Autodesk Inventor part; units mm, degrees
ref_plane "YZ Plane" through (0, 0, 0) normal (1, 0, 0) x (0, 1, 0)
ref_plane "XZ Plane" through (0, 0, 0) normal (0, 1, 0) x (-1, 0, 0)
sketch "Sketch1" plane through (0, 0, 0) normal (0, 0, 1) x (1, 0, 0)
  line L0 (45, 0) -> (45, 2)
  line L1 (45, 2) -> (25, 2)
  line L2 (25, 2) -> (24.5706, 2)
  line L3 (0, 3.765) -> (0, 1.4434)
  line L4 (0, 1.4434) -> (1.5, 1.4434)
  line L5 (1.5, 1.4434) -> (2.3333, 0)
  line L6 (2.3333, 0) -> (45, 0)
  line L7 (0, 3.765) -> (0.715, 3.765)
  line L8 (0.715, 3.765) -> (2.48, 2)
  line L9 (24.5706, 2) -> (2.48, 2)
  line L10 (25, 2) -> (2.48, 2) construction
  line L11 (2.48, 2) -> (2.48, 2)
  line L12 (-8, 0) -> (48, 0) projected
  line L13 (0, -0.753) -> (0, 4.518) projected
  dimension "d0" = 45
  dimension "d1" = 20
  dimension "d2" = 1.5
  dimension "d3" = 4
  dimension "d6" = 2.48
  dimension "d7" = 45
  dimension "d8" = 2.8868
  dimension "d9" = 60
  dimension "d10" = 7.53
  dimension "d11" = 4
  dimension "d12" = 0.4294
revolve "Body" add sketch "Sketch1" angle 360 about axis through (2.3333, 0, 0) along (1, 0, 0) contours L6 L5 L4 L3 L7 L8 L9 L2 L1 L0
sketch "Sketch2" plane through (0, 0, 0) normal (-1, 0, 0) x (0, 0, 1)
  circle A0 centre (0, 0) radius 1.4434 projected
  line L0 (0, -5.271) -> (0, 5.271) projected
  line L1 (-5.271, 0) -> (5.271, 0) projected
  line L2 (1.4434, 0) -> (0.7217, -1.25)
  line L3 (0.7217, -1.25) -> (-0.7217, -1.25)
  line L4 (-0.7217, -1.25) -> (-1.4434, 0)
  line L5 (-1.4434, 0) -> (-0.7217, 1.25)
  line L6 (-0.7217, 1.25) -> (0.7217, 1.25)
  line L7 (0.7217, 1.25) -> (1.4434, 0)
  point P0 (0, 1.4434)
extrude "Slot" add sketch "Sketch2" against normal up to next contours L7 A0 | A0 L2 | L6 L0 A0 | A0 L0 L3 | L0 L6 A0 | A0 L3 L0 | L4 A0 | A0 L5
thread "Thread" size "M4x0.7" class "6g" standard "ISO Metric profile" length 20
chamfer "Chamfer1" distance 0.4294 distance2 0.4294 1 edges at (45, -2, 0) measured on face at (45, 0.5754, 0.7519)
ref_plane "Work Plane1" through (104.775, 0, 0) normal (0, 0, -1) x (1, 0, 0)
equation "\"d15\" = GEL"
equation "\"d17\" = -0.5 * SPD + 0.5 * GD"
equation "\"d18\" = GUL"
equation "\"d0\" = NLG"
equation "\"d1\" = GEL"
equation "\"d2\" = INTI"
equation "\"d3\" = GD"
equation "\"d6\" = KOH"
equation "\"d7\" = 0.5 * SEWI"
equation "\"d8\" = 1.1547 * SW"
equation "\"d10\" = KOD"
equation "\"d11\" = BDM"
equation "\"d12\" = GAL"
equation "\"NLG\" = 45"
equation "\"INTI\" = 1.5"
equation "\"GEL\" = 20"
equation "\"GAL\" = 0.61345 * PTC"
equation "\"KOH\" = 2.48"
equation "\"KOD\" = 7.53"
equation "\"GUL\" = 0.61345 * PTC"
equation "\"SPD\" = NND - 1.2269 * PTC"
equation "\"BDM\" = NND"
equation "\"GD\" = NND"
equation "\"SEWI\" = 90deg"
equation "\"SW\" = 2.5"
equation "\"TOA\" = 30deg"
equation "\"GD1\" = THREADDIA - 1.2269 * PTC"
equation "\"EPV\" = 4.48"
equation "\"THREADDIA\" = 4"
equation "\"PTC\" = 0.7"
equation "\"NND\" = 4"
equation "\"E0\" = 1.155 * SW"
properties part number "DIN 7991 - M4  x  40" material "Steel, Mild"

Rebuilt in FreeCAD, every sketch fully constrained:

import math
import FreeCAD as App
import Part
import Sketcher

V = App.Vector
Q = App.Units.Quantity


def edges_at(feature, points):
    """Names of the edges that pass closest to the given points."""
    edges = feature.Shape.Edges
    near = lambda p: min(range(len(edges)), key=lambda i: edges[i].distToShape(Part.Vertex(*p))[0])
    return sorted({f"Edge{near(p) + 1}" for p in points})

doc = App.newDocument("Part")
body = doc.addObject("PartDesign::Body", "Body")

sketch1 = body.newObject("Sketcher::SketchObject", "Sketch")
sketch1.AttachmentSupport = (doc.getObject("XY_Plane"), [""])
sketch1.MapMode = "FlatFace"
sketch1.addGeometry([
    Part.LineSegment(V(2.3, 0, 0), V(45, 0, 0)),
    Part.LineSegment(V(45, 0, 0), V(45, 2, 0)),
    Part.LineSegment(V(45, 2, 0), V(2.5, 2, 0)),
    Part.LineSegment(V(2.5, 2, 0), V(0.7, 3.8, 0)),
    Part.LineSegment(V(0.7, 3.8, 0), V(0, 3.8, 0)),
    Part.LineSegment(V(0, 3.8, 0), V(0, 1.4, 0)),
    Part.LineSegment(V(0, 1.4, 0), V(1.5, 1.4, 0)),
    Part.LineSegment(V(1.5, 1.4, 0), V(2.3, 0, 0)),
], False)
sketch1.addConstraint([
    Sketcher.Constraint("Coincident", 0, 2, 1, 1),
    Sketcher.Constraint("Coincident", 1, 2, 2, 1),
    Sketcher.Constraint("Coincident", 2, 2, 3, 1),
    Sketcher.Constraint("Coincident", 3, 2, 4, 1),
    Sketcher.Constraint("Coincident", 4, 2, 5, 1),
    Sketcher.Constraint("Coincident", 5, 2, 6, 1),
    Sketcher.Constraint("Coincident", 6, 2, 7, 1),
    Sketcher.Constraint("Coincident", 7, 2, 0, 1),
    Sketcher.Constraint("Horizontal", 0),
    Sketcher.Constraint("Vertical", 1),
    Sketcher.Constraint("Horizontal", 2),
    Sketcher.Constraint("Horizontal", 4),
    Sketcher.Constraint("Vertical", 5),
    Sketcher.Constraint("Horizontal", 6),
    Sketcher.Constraint("PointOnObject", 0, 2, -1),
    Sketcher.Constraint("PointOnObject", 4, 2, -2),
    Sketcher.Constraint("DistanceX", 6, 1, 6, 2, 1.5),
    Sketcher.Constraint("DistanceX", -1, 1, 0, 2, 45.0),
    Sketcher.Constraint("DistanceY", 1, 1, 1, 2, 2.0),
    Sketcher.Constraint("DistanceX", -1, 1, 2, 2, 2.48),
    Sketcher.Constraint("Angle", 3, Q("135 deg")),
    Sketcher.Constraint("DistanceX", 4, 2, 4, 1, 0.715),
    Sketcher.Constraint("DistanceX", 0, 1, 0, 2, 42.6667),
    Sketcher.Constraint("DistanceY", 5, 2, 5, 1, 2.3216),
])
revolution = body.newObject("PartDesign::Revolution", "Revolution")
revolution.Profile = sketch1
revolution.ReferenceAxis = (sketch1, ["H_Axis"])
revolution.Angle = 360

sketch2 = body.newObject("Sketcher::SketchObject", "Sketch001")
sketch2.AttachmentSupport = (doc.getObject("YZ_Plane"), [""])
sketch2.MapMode = "FlatFace"
sketch2.addGeometry([
    Part.LineSegment(V(1.2, 0.7, 0), V(0, 1.4, 0)),
    Part.ArcOfCircle(Part.Circle(V(0, 0, 0), V(0, 0, 1), 1.4), math.radians(30), math.radians(90)),
    Part.ArcOfCircle(Part.Circle(V(0, 0, 0), V(0, 0, 1), 1.4), math.radians(90), math.radians(150)),
    Part.LineSegment(V(0, 1.4, 0), V(-1.2, 0.7, 0)),
    Part.ArcOfCircle(Part.Circle(V(0, 0, 0), V(0, 0, 1), 1.4), math.radians(-30), math.radians(30)),
    Part.LineSegment(V(1.2, 0.7, 0), V(1.2, -0.7, 0)),
    Part.LineSegment(V(-1.2, 0.7, 0), V(-1.2, -0.7, 0)),
    Part.ArcOfCircle(Part.Circle(V(0, 0, 0), V(0, 0, 1), 1.4), math.radians(150), math.radians(210)),
    Part.LineSegment(V(-1.2, -0.7, 0), V(0, -1.4, 0)),
    Part.ArcOfCircle(Part.Circle(V(0, 0, 0), V(0, 0, 1), 1.4), math.radians(-150), math.radians(-90)),
    Part.ArcOfCircle(Part.Circle(V(0, 0, 0), V(0, 0, 1), 1.4), math.radians(-90), math.radians(-30)),
    Part.LineSegment(V(0, -1.4, 0), V(1.2, -0.7, 0)),
], False)
sketch2.addConstraint([
    Sketcher.Constraint("Coincident", 0, 1, 1, 1),
    Sketcher.Constraint("Coincident", 1, 2, 0, 2),
    Sketcher.Constraint("Coincident", 2, 1, 3, 1),
    Sketcher.Constraint("Coincident", 3, 2, 2, 2),
    Sketcher.Constraint("Coincident", 4, 1, 5, 2),
    Sketcher.Constraint("Coincident", 5, 1, 4, 2),
    Sketcher.Constraint("Coincident", 6, 1, 7, 1),
    Sketcher.Constraint("Coincident", 7, 2, 6, 2),
    Sketcher.Constraint("Coincident", 8, 1, 9, 1),
    Sketcher.Constraint("Coincident", 9, 2, 8, 2),
    Sketcher.Constraint("Coincident", 10, 1, 11, 1),
    Sketcher.Constraint("Coincident", 11, 2, 10, 2),
    Sketcher.Constraint("Vertical", 5),
    Sketcher.Constraint("Vertical", 6),
    Sketcher.Constraint("Coincident", 1, 3, -1, 1),
    Sketcher.Constraint("Coincident", 2, 3, -1, 1),
    Sketcher.Constraint("Coincident", 4, 3, -1, 1),
    Sketcher.Constraint("Coincident", 7, 3, -1, 1),
    Sketcher.Constraint("Coincident", 9, 3, -1, 1),
    Sketcher.Constraint("Coincident", 10, 3, -1, 1),
    Sketcher.Constraint("Coincident", 2, 1, 1, 2),
    Sketcher.Constraint("Coincident", 5, 1, 0, 1),
    Sketcher.Constraint("Coincident", 6, 1, 3, 2),
    Sketcher.Constraint("Coincident", 8, 1, 7, 2),
    Sketcher.Constraint("Coincident", 10, 1, 9, 2),
    Sketcher.Constraint("PointOnObject", 1, 2, -2),
    Sketcher.Constraint("PointOnObject", 9, 2, -2),
    Sketcher.Constraint("Parallel", 0, 8),
    Sketcher.Constraint("Parallel", 3, 11),
    Sketcher.Constraint("Angle", 0, Q("149.9996 deg")),
    Sketcher.Constraint("Radius", 1, 1.4434),
])
pad1 = body.newObject("PartDesign::Pad", "Pad")
pad1.Profile = sketch2
pad1.Type = "UpToFirst"
doc.recompute()

chamfer = body.newObject("PartDesign::Chamfer", "Chamfer")
chamfer.Base = (pad1, edges_at(pad1, [(45, -2, 0)]))
chamfer.ChamferType = "Two distances"
chamfer.Size = 0.4294
chamfer.Size2 = 0.4294

doc.recompute()
